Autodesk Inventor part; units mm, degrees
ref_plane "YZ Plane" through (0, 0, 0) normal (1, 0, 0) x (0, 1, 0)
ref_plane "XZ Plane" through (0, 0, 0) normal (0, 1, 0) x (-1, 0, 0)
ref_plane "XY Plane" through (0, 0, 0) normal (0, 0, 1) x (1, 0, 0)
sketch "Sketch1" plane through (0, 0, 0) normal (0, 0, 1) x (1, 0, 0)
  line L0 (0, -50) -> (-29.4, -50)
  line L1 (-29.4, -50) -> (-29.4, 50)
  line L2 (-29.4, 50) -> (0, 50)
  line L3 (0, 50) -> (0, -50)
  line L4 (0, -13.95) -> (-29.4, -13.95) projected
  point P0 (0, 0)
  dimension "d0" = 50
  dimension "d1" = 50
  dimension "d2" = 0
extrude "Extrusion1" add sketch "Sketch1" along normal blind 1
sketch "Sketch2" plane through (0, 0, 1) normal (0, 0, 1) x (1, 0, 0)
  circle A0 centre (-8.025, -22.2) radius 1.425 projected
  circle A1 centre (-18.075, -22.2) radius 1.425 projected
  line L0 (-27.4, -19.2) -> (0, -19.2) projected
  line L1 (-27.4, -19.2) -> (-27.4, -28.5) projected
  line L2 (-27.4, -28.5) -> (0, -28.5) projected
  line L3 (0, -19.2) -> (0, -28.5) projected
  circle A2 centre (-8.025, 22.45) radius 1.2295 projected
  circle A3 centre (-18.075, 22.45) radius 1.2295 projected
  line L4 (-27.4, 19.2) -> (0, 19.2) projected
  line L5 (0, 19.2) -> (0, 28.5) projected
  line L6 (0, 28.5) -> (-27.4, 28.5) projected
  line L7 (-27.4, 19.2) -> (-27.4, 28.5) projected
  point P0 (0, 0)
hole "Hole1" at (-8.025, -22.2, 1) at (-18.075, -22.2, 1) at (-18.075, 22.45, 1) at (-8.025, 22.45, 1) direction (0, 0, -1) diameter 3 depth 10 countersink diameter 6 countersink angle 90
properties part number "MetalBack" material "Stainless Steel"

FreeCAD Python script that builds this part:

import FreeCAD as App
import Part
import Sketcher
from FreeCAD import Vector


def add_polygon(sketch, points):
    """Adds a closed chain of lines whose ends are joined by coincident constraints."""
    first, n = sketch.GeometryCount, len(points)
    for a, b in zip(points, points[1:] + points[:1]):
        sketch.addGeometry(Part.LineSegment(App.Vector(*a, 0), App.Vector(*b, 0)), False)
    for i in range(n):
        sketch.addConstraint(Sketcher.Constraint("Coincident", first + i, 2, first + (i + 1) % n, 1))

doc = App.newDocument("Part")
body = doc.addObject("PartDesign::Body", "Body")

# Sketch on XY plane
sketch1 = body.newObject("Sketcher::SketchObject", "Sketch")
sketch1.AttachmentSupport = (doc.getObject("XY_Plane"), [""])
sketch1.MapMode = "FlatFace"
add_polygon(sketch1, [(-29, -50), (0, -50), (0, 50), (-29, 50)])  # lines 0-3
sketch1.addConstraint(Sketcher.Constraint("Horizontal", 0))
sketch1.addConstraint(Sketcher.Constraint("Vertical", 1))
sketch1.addConstraint(Sketcher.Constraint("Horizontal", 2))
sketch1.addConstraint(Sketcher.Constraint("Vertical", 3))
sketch1.addConstraint(Sketcher.Constraint("Symmetric", 0, 2, 1, 2, -1, 1))
sketch1.addConstraint(Sketcher.Constraint("DistanceY", 0, 2, -1, 1, 50.0))
sketch1.addConstraint(Sketcher.Constraint("DistanceX", 0, 1, 0, 2, 29.4))
pad1 = body.newObject("PartDesign::Pad", "Pad")
pad1.Profile = sketch1
pad1.Length = 1

# Sketch on XY plane
sketch2 = body.newObject("Sketcher::SketchObject", "Sketch001")
sketch2.AttachmentSupport = (doc.getObject("XY_Plane"), [""])
sketch2.MapMode = "FlatFace"
sketch2.AttachmentOffset = App.Placement(Vector(0, 0, 1), App.Rotation())
sketch2.addGeometry(Part.Circle(Vector(-8, -22.2, 0), Vector(0, 0, 1), 1.5), False)
sketch2.addGeometry(Part.Circle(Vector(-18.1, -22.2, 0), Vector(0, 0, 1), 1.5), False)
sketch2.addGeometry(Part.Circle(Vector(-18.1, 22.4, 0), Vector(0, 0, 1), 1.5), False)
sketch2.addGeometry(Part.Circle(Vector(-8, 22.4, 0), Vector(0, 0, 1), 1.5), False)
sketch2.addConstraint(Sketcher.Constraint("Equal", 0, 1))
sketch2.addConstraint(Sketcher.Constraint("Equal", 1, 2))
sketch2.addConstraint(Sketcher.Constraint("Equal", 2, 3))
sketch2.addConstraint(Sketcher.Constraint("Horizontal", 0, 3, 1, 3))
sketch2.addConstraint(Sketcher.Constraint("Horizontal", 2, 3, 3, 3))
sketch2.addConstraint(Sketcher.Constraint("Vertical", 1, 3, 2, 3))
sketch2.addConstraint(Sketcher.Constraint("Vertical", 0, 3, 3, 3))
sketch2.addConstraint(Sketcher.Constraint("Diameter", 0, 3.0))
sketch2.addConstraint(Sketcher.Constraint("DistanceY", 0, 3, -1, 1, 22.2))
sketch2.addConstraint(Sketcher.Constraint("DistanceY", -1, 1, 2, 3, 22.45))
sketch2.addConstraint(Sketcher.Constraint("DistanceX", 1, 3, 0, 3, 10.05))
sketch2.addConstraint(Sketcher.Constraint("DistanceX", 0, 3, -1, 1, 8.025))
doc.recompute()
hole = body.newObject("PartDesign::Hole", "Hole")
hole.Profile = sketch2
hole.ThreadType = "None"
hole.Diameter = 3
hole.DepthType = "Dimension"
hole.Depth = 10
hole.DrillPoint = "Flat"
hole.HoleCutType = "Countersink"
hole.HoleCutDiameter = 6
hole.HoleCutCountersinkAngle = 90

doc.recompute()
